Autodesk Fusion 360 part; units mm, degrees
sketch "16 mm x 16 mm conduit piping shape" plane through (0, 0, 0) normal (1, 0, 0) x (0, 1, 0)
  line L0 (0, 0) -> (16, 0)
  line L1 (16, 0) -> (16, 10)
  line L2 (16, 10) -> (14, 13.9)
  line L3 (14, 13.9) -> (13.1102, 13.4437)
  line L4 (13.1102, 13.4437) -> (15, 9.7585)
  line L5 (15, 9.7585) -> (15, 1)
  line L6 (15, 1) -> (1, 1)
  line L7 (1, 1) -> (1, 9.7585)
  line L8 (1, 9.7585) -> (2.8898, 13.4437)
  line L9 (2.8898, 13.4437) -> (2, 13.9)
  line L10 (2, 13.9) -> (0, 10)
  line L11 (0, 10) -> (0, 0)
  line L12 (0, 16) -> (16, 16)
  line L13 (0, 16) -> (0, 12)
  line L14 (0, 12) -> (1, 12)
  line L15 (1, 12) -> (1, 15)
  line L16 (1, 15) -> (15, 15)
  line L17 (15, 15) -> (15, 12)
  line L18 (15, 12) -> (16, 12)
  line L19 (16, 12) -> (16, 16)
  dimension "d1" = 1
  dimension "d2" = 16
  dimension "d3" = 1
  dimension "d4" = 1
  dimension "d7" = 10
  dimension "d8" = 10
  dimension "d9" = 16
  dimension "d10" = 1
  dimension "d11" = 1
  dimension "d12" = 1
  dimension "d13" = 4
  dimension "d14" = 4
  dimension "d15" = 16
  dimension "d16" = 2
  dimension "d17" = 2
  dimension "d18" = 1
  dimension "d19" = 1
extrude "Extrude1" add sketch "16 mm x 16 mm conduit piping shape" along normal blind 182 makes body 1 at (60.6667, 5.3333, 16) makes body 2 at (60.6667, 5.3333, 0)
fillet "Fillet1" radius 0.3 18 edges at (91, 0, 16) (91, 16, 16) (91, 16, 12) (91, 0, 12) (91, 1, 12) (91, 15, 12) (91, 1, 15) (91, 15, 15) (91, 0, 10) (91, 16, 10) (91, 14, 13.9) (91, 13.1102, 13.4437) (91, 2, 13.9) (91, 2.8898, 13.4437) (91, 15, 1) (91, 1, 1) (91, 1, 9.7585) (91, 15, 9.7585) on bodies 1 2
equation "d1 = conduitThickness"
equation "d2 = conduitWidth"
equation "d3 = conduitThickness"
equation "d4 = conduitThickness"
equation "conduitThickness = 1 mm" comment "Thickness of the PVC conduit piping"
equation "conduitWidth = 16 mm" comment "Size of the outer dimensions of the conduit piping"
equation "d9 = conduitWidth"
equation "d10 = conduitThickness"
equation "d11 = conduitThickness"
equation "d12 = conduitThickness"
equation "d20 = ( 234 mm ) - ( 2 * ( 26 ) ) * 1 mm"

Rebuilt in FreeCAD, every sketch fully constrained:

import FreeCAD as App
import Part
import Sketcher
from FreeCAD import Vector


def edges_at(feature, points):
    """Names of the edges that pass closest to the given points."""
    edges = feature.Shape.Edges
    near = lambda p: min(range(len(edges)), key=lambda i: edges[i].distToShape(Part.Vertex(*p))[0])
    return sorted({f"Edge{near(p) + 1}" for p in points})


def add_polygon(sketch, points):
    """Adds a closed chain of lines whose ends are joined by coincident constraints."""
    first, n = sketch.GeometryCount, len(points)
    for a, b in zip(points, points[1:] + points[:1]):
        sketch.addGeometry(Part.LineSegment(App.Vector(*a, 0), App.Vector(*b, 0)), False)
    for i in range(n):
        sketch.addConstraint(Sketcher.Constraint("Coincident", first + i, 2, first + (i + 1) % n, 1))

doc = App.newDocument("Part")
body = doc.addObject("PartDesign::Body", "Body")
body.AllowCompound = True

# Sketch on YZ plane
sketch1 = body.newObject("Sketcher::SketchObject", "Sketch")
sketch1.AttachmentSupport = (doc.getObject("YZ_Plane"), [""])
sketch1.MapMode = "FlatFace"
add_polygon(sketch1, [(0, 10), (0, 0), (16, 0), (16, 10), (14, 13.9), (13.1102, 13.4437), (15, 9.7585), (15, 1), (1, 1), (1, 9.7585), (2.8898, 13.4437), (2, 13.9)])  # lines 0-11
add_polygon(sketch1, [(16, 16), (0, 16), (0, 12), (1, 12), (1, 15), (15, 15), (15, 12), (16, 12)])  # lines 12-19
sketch1.addConstraint(Sketcher.Constraint("Vertical", 0))
sketch1.addConstraint(Sketcher.Constraint("Horizontal", 1))
sketch1.addConstraint(Sketcher.Constraint("Vertical", 2))
sketch1.addConstraint(Sketcher.Constraint("Vertical", 6))
sketch1.addConstraint(Sketcher.Constraint("Horizontal", 7))
sketch1.addConstraint(Sketcher.Constraint("Vertical", 8))
sketch1.addConstraint(Sketcher.Constraint("Horizontal", 12))
sketch1.addConstraint(Sketcher.Constraint("Vertical", 13))
sketch1.addConstraint(Sketcher.Constraint("Horizontal", 14))
sketch1.addConstraint(Sketcher.Constraint("Vertical", 15))
sketch1.addConstraint(Sketcher.Constraint("Horizontal", 16))
sketch1.addConstraint(Sketcher.Constraint("Vertical", 17))
sketch1.addConstraint(Sketcher.Constraint("Horizontal", 18))
sketch1.addConstraint(Sketcher.Constraint("Vertical", 19))
sketch1.addConstraint(Sketcher.Constraint("Coincident", 0, 2, -1, 1))
sketch1.addConstraint(Sketcher.Constraint("PointOnObject", 12, 2, -2))
sketch1.addConstraint(Sketcher.Constraint("Perpendicular", 3, 4))
sketch1.addConstraint(Sketcher.Constraint("Perpendicular", 4, 5))
sketch1.addConstraint(Sketcher.Constraint("Perpendicular", 9, 10))
sketch1.addConstraint(Sketcher.Constraint("Perpendicular", 10, 11))
sketch1.addConstraint(Sketcher.Constraint("Horizontal", 5, 2, 8, 2))
sketch1.addConstraint(Sketcher.Constraint("Horizontal", 4, 2, 9, 2))
sketch1.addConstraint(Sketcher.Constraint("Horizontal", 3, 2, 10, 2))
sketch1.addConstraint(Sketcher.Constraint("Horizontal", 2, 2, 11, 2))
sketch1.addConstraint(Sketcher.Constraint("Horizontal", 14, 2, 17, 2))
sketch1.addConstraint(Sketcher.Constraint("Vertical", 8, 2, 14, 2))
sketch1.addConstraint(Sketcher.Constraint("Vertical", 6, 2, 16, 2))
sketch1.addConstraint(Sketcher.Constraint("Vertical", 2, 2, 18, 2))
sketch1.addConstraint(Sketcher.Constraint("Equal", 14, 18))
sketch1.addConstraint(Sketcher.Constraint("DistanceX", 1, 1, 1, 2, 16.0))
sketch1.addConstraint(Sketcher.Constraint("DistanceX", 14, 1, 14, 2, 1.0))
sketch1.addConstraint(Sketcher.Constraint("DistanceY", 0, 2, 0, 1, 10.0))
sketch1.addConstraint(Sketcher.Constraint("DistanceY", 13, 2, 13, 1, 4.0))
sketch1.addConstraint(Sketcher.Constraint("Distance", 4, 1.0))
sketch1.addConstraint(Sketcher.Constraint("DistanceY", -1, 1, 6, 2, 1.0))
sketch1.addConstraint(Sketcher.Constraint("DistanceX", -1, 1, 10, 2, 2.0))
sketch1.addConstraint(Sketcher.Constraint("DistanceY", -1, 1, 12, 2, 16.0))
sketch1.addConstraint(Sketcher.Constraint("DistanceY", 15, 2, 12, 2, 1.0))
sketch1.addConstraint(Sketcher.Constraint("DistanceY", -1, 1, 3, 2, 13.9))
pad1 = body.newObject("PartDesign::Pad", "Pad")
pad1.Profile = sketch1
pad1.Length = 182
doc.recompute()

fillet = body.newObject("PartDesign::Fillet", "Fillet")
fillet.Base = (pad1, edges_at(pad1, [
    (91, 0, 16),
    (91, 16, 16),
    (91, 16, 12),
    (91, 0, 12),
    (91, 1, 12),
    (91, 15, 12),
    (91, 1, 15),
    (91, 15, 15),
    (91, 0, 10),
    (91, 16, 10),
    (91, 14, 13.9),
    (91, 13.11, 13.444),
    (91, 2, 13.9),
    (91, 2.89, 13.444),
    (91, 15, 1),
    (91, 1, 1),
    (91, 1, 9.758),
    (91, 15, 9.758),
]))
fillet.Radius = 0.3

doc.recompute()
